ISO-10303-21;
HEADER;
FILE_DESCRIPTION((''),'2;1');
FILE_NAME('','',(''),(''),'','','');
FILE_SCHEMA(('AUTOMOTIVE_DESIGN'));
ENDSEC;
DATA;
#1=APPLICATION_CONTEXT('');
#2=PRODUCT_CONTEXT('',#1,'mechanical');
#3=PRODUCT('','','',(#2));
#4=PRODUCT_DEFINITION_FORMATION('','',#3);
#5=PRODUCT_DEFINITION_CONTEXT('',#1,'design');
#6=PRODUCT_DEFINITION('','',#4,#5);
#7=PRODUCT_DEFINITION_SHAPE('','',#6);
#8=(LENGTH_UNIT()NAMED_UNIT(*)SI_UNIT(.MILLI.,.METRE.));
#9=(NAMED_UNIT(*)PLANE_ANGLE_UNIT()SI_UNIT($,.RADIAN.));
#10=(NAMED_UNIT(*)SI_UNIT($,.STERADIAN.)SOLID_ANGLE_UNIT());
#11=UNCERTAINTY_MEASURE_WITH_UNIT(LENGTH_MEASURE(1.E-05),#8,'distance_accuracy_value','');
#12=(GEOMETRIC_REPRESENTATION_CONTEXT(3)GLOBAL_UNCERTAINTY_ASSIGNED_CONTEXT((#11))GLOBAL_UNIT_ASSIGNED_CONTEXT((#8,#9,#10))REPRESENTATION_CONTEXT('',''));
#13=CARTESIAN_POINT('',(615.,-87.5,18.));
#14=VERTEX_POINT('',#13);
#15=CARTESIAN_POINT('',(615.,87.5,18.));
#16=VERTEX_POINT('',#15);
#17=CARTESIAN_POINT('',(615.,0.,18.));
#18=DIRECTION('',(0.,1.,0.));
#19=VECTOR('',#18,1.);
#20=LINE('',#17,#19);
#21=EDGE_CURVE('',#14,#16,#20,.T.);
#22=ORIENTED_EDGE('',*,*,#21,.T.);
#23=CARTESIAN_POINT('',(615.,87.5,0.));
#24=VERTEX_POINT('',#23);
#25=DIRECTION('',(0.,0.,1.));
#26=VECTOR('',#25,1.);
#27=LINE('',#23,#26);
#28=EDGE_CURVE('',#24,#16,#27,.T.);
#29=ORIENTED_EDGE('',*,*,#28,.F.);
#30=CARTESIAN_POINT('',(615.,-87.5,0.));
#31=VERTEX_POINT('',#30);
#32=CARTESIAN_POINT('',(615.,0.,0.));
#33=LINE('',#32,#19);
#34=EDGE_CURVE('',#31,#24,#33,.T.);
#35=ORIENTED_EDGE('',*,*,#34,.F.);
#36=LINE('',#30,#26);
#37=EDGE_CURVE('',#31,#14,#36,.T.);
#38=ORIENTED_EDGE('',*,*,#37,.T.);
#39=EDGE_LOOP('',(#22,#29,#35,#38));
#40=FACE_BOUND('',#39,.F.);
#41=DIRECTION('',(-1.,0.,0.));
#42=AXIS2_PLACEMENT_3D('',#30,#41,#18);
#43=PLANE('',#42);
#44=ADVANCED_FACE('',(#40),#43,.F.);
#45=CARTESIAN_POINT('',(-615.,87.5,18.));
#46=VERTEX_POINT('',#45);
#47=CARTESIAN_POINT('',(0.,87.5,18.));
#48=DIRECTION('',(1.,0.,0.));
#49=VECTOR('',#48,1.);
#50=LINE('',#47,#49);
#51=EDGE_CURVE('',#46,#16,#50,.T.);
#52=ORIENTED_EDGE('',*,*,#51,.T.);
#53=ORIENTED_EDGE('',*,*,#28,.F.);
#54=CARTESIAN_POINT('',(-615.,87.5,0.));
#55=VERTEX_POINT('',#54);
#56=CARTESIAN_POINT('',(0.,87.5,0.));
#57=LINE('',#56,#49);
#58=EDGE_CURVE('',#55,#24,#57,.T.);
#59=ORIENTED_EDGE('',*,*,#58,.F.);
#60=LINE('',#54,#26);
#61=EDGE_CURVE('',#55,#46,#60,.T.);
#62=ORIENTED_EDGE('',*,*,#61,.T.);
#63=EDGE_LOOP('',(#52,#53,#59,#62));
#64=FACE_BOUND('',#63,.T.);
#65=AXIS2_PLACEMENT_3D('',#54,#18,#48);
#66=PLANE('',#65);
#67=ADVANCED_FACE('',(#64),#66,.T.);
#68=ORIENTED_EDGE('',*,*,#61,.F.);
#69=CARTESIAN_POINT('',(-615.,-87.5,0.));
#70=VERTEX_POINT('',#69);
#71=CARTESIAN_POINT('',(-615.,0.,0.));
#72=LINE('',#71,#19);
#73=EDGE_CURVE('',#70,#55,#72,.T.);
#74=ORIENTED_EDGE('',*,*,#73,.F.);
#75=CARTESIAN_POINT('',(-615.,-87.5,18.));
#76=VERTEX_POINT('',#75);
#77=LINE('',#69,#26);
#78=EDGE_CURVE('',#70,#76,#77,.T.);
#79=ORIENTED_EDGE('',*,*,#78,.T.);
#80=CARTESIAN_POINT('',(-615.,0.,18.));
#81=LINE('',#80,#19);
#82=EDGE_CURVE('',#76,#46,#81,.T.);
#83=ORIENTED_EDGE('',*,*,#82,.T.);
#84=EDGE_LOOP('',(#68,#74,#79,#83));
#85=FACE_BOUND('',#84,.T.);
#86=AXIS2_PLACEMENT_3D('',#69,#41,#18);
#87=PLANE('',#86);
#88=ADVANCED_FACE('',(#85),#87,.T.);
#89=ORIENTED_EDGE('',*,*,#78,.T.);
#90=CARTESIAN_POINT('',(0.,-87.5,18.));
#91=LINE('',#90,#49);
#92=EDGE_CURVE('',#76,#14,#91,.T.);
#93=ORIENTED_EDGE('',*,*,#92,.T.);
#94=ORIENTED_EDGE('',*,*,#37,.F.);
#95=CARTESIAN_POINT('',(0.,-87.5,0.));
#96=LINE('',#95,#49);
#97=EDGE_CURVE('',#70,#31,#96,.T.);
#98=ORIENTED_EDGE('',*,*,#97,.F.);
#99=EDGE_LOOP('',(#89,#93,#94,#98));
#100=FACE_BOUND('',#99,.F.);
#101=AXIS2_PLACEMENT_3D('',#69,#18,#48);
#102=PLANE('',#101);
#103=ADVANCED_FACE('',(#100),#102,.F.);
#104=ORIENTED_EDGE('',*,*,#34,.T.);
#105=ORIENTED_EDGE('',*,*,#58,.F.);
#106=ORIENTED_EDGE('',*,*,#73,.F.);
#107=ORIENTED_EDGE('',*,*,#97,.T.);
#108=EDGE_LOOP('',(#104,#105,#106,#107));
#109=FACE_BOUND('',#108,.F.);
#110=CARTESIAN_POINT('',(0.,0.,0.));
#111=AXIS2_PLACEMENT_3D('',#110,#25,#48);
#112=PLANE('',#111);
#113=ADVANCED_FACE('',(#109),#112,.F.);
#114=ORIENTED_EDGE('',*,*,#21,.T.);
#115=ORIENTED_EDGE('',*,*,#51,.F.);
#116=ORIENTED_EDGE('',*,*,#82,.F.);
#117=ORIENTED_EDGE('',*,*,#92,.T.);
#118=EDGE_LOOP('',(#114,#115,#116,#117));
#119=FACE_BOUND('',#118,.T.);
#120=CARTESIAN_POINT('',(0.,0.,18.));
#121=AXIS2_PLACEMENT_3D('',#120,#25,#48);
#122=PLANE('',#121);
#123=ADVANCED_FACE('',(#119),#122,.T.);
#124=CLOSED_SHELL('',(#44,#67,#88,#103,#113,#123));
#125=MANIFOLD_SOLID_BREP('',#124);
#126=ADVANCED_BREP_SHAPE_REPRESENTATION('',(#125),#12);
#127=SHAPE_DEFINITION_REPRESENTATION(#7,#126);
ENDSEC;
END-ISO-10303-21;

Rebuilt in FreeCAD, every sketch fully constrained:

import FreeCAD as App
import Part
import Sketcher

V = App.Vector
Q = App.Units.Quantity


def add_polygon(sketch, points):
    """Adds a closed chain of lines whose ends are joined by coincident constraints."""
    first, n = sketch.GeometryCount, len(points)
    for a, b in zip(points, points[1:] + points[:1]):
        sketch.addGeometry(Part.LineSegment(App.Vector(*a, 0), App.Vector(*b, 0)), False)
    for i in range(n):
        sketch.addConstraint(Sketcher.Constraint("Coincident", first + i, 2, first + (i + 1) % n, 1))

doc = App.newDocument("Part")
body = doc.addObject("PartDesign::Body", "Body")

sketch1 = doc.addObject("Sketcher::SketchObject", "Sketch")
body.addObject(sketch1)
sketch1.AttachmentSupport = (doc.XY_Plane, [""])
sketch1.MapMode = "FlatFace"
add_polygon(sketch1, [(-615, 88), (-615, -88), (615, -88), (615, 88)])
sketch1.addConstraint(Sketcher.Constraint("Vertical", 0))
sketch1.addConstraint(Sketcher.Constraint("Horizontal", 1))
sketch1.addConstraint(Sketcher.Constraint("Vertical", 2))
sketch1.addConstraint(Sketcher.Constraint("Horizontal", 3))
sketch1.addConstraint(Sketcher.Constraint("Symmetric", 0, 2, 2, 2, -1, 1))
sketch1.addConstraint(Sketcher.Constraint("DistanceX", 1, 1, 1, 2, Q("1230 mm")))
sketch1.addConstraint(Sketcher.Constraint("DistanceY", 0, 2, 0, 1, Q("175 mm")))
pad1 = doc.addObject("PartDesign::Pad", "Pad")
body.addObject(pad1)
pad1.Profile = sketch1
pad1.Length = 18

doc.recompute()
